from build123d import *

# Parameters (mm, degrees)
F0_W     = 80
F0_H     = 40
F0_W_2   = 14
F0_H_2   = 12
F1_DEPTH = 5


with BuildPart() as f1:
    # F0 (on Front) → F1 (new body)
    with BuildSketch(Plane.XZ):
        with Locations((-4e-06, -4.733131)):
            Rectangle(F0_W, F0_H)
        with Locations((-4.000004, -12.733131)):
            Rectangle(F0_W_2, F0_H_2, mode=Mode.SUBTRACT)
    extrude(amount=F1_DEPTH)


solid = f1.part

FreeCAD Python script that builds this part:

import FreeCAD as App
import Part
import Sketcher
Q = App.Units.Quantity

doc = App.newDocument("Part")
body = doc.addObject("PartDesign::Body", "Body")

# Sketch on XZ plane
sketch1 = doc.addObject("Sketcher::SketchObject", "Sketch")
body.addObject(sketch1)
sketch1.AttachmentSupport = (doc.XZ_Plane, [""])
sketch1.MapMode = "FlatFace"
sketch1.addGeometry([
    Part.LineSegment(App.Vector(-40, 15, 0), App.Vector(-40, -25, 0)),  # 0
    Part.LineSegment(App.Vector(-40, -25, 0), App.Vector(40, -25, 0)),  # 1
    Part.LineSegment(App.Vector(40, -25, 0), App.Vector(40, 15, 0)),  # 2
    Part.LineSegment(App.Vector(40, 15, 0), App.Vector(-40, 15, 0)),  # 3
    Part.LineSegment(App.Vector(3, -19, 0), App.Vector(-11, -19, 0)),  # 4
    Part.LineSegment(App.Vector(-11, -19, 0), App.Vector(-11, -7, 0)),  # 5
    Part.LineSegment(App.Vector(-11, -7, 0), App.Vector(3, -7, 0)),  # 6
    Part.LineSegment(App.Vector(3, -7, 0), App.Vector(3, -19, 0)),  # 7
], False)
sketch1.addConstraint([
    Sketcher.Constraint("Coincident", 0, 2, 1, 1),
    Sketcher.Constraint("Coincident", 1, 2, 2, 1),
    Sketcher.Constraint("Coincident", 2, 2, 3, 1),
    Sketcher.Constraint("Coincident", 3, 2, 0, 1),
    Sketcher.Constraint("Coincident", 4, 2, 5, 1),
    Sketcher.Constraint("Coincident", 5, 2, 6, 1),
    Sketcher.Constraint("Coincident", 6, 2, 7, 1),
    Sketcher.Constraint("Coincident", 7, 2, 4, 1),
    Sketcher.Constraint("Vertical", 0),
    Sketcher.Constraint("Horizontal", 1),
    Sketcher.Constraint("Vertical", 2),
    Sketcher.Constraint("Horizontal", 3),
    Sketcher.Constraint("Horizontal", 4),
    Sketcher.Constraint("Vertical", 5),
    Sketcher.Constraint("Horizontal", 6),
    Sketcher.Constraint("Vertical", 7),
    Sketcher.Constraint("DistanceX", 1, 1, 1, 2, Q("80 mm")),
    Sketcher.Constraint("DistanceX", 4, 2, 4, 1, Q("14 mm")),
    Sketcher.Constraint("DistanceY", 0, 2, 0, 1, Q("40 mm")),
    Sketcher.Constraint("DistanceY", 5, 1, 5, 2, Q("12 mm")),
    Sketcher.Constraint("DistanceX", 0, 2, 4, 2, Q("29 mm")),
    Sketcher.Constraint("DistanceY", 0, 2, 4, 2, Q("6 mm")),
    Sketcher.Constraint("DistanceY", 0, 2, -1, 1, Q("24.733131 mm")),
    Sketcher.Constraint("DistanceX", 0, 2, -1, 1, Q("40.000004 mm")),
])
pad1 = doc.addObject("PartDesign::Pad", "Pad")
body.addObject(pad1)
pad1.Profile = sketch1
pad1.Length = 5

doc.recompute()
